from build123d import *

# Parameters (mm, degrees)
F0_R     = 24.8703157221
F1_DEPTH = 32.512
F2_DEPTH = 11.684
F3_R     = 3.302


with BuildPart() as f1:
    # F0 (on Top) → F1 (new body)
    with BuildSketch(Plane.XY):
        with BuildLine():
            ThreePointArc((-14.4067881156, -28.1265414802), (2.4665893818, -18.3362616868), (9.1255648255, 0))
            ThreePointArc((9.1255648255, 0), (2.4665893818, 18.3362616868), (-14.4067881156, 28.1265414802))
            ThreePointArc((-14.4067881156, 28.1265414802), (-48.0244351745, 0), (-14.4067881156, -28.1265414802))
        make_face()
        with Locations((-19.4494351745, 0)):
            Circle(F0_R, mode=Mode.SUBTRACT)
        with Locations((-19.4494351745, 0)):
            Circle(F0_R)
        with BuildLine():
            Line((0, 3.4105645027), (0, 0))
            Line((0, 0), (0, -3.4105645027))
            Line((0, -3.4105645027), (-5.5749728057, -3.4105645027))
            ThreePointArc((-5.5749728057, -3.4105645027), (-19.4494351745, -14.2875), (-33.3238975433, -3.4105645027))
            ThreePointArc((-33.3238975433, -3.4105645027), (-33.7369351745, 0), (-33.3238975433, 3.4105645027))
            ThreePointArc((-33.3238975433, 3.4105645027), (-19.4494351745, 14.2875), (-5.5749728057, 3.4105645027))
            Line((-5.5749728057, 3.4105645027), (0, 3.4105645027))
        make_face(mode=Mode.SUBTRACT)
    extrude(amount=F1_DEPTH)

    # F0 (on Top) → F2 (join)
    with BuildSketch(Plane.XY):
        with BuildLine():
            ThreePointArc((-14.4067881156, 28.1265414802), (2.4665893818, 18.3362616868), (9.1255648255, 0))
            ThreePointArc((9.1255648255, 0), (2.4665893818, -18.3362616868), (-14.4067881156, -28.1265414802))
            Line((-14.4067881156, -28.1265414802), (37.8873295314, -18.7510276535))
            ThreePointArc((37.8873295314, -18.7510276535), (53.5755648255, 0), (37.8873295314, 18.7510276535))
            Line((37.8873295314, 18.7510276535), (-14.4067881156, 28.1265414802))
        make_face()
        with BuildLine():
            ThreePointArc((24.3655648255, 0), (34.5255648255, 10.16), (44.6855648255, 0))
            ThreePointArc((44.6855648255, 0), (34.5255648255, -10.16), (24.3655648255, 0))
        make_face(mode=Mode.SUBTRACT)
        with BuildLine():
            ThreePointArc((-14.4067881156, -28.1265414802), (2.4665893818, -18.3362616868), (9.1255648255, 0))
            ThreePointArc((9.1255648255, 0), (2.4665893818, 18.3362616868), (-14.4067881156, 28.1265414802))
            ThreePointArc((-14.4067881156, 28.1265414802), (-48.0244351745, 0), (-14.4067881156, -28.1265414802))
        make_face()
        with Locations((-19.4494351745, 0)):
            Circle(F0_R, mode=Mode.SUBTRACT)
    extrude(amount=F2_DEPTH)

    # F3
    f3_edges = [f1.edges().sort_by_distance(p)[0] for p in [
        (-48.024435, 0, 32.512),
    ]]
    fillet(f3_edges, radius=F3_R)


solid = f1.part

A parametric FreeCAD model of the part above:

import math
import FreeCAD as App
import Part
import Sketcher
Q = App.Units.Quantity


def edges_at(feature, points):
    """Names of the edges that pass closest to the given points."""
    edges = feature.Shape.Edges
    near = lambda p: min(range(len(edges)), key=lambda i: edges[i].distToShape(Part.Vertex(*p))[0])
    return sorted({f"Edge{near(p) + 1}" for p in points})

doc = App.newDocument("Part")
body = doc.addObject("PartDesign::Body", "Body")

# Sketch on XY plane
sketch1 = body.newObject("Sketcher::SketchObject", "Sketch")
sketch1.AttachmentSupport = (doc.getObject("XY_Plane"), [""])
sketch1.MapMode = "FlatFace"
sketch1.addGeometry([
    Part.ArcOfCircle(Part.Circle(App.Vector(-19.449435, 0, 0), App.Vector(0, 0, 1), 28.575), math.radians(-79.835751), math.radians(79.835751)),  # 0
    Part.ArcOfCircle(Part.Circle(App.Vector(-19.449435, 0, 0), App.Vector(0, 0, 1), 28.575), math.radians(79.835751), math.radians(280.164249)),  # 1
    Part.LineSegment(App.Vector(-5.574973, 3.410565, 0), App.Vector(0, 3.410565, 0)),  # 2
    Part.LineSegment(App.Vector(0, 3.410565, 0), App.Vector(0, -3.410565, 0)),  # 3
    Part.LineSegment(App.Vector(0, -3.410565, 0), App.Vector(-5.574973, -3.410565, 0)),  # 4
    Part.ArcOfCircle(Part.Circle(App.Vector(-19.449435, 0, 0), App.Vector(0, 0, 1), 14.2875), math.radians(-166.189603), math.radians(-13.810397)),  # 5
    Part.ArcOfCircle(Part.Circle(App.Vector(-19.449435, 0, 0), App.Vector(0, 0, 1), 14.2875), math.radians(166.189603), math.radians(193.810397)),  # 6
    Part.ArcOfCircle(Part.Circle(App.Vector(-19.449435, 0, 0), App.Vector(0, 0, 1), 14.2875), math.radians(13.810397), math.radians(166.189603)),  # 7
], False)
sketch1.addConstraint([
    Sketcher.Constraint("Tangent", 0, 1, 1, 2),
    Sketcher.Constraint("Coincident", 1, 1, 0, 2),
    Sketcher.Constraint("Coincident", 2, 2, 3, 1),
    Sketcher.Constraint("Coincident", 3, 2, 4, 1),
    Sketcher.Constraint("Coincident", 4, 2, 5, 2),
    Sketcher.Constraint("Tangent", 5, 1, 6, 2),
    Sketcher.Constraint("Tangent", 6, 1, 7, 2),
    Sketcher.Constraint("Coincident", 7, 1, 2, 1),
    Sketcher.Constraint("Horizontal", 2),
    Sketcher.Constraint("Vertical", 3),
    Sketcher.Constraint("Horizontal", 4),
    Sketcher.Constraint("Coincident", 5, 3, 0, 3),
    Sketcher.Constraint("Coincident", 7, 3, 0, 3),
    Sketcher.Constraint("Symmetric", 2, 2, 3, 2, -1, 1),
    Sketcher.Constraint("Symmetric", 0, 1, 1, 1, -1),
    Sketcher.Constraint("Horizontal", 4, 2, 5, 1),
    Sketcher.Constraint("Horizontal", 2, 2, 6, 1),
    Sketcher.Constraint("Radius", 0, Q("1.125 in")),
    Sketcher.Constraint("Radius", 5, Q("0.5625 in")),
    Sketcher.Constraint("DistanceY", 3, 2, 3, 1, 6.821129),
    Sketcher.Constraint("DistanceX", 2, 1, 2, 2, 5.574973),
    Sketcher.Constraint("DistanceX", 0, 1, -1, 1, 14.406788),
])
pad1 = body.newObject("PartDesign::Pad", "Pad")
pad1.Profile = sketch1
pad1.Length = Q("1.28 in")

# Sketch on XY plane
sketch2 = body.newObject("Sketcher::SketchObject", "Sketch001")
sketch2.AttachmentSupport = (doc.getObject("XY_Plane"), [""])
sketch2.MapMode = "FlatFace"
sketch2.addGeometry([
    Part.LineSegment(App.Vector(37.88733, 18.751028, 0), App.Vector(-14.406788, 28.126541, 0)),  # 0
    Part.ArcOfCircle(Part.Circle(App.Vector(-19.449435, 0, 0), App.Vector(0, 0, 1), 28.575), math.radians(79.835751), math.radians(280.164249)),  # 1
    Part.LineSegment(App.Vector(-14.406788, -28.126541, 0), App.Vector(37.88733, -18.751028, 0)),  # 2
    Part.ArcOfCircle(Part.Circle(App.Vector(34.525565, 0, 0), App.Vector(0, 0, 1), 19.05), math.radians(-79.835751), math.radians(79.835751)),  # 3
    Part.Circle(App.Vector(-19.449435, 0, 0), App.Vector(0, 0, 1), 24.870316),  # 4
    Part.Circle(App.Vector(34.525565, 0, 0), App.Vector(0, 0, 1), 10.16),  # 5
], False)
sketch2.addConstraint([
    Sketcher.Constraint("Tangent", 0, 2, 1, 1),
    Sketcher.Constraint("Tangent", 1, 2, 2, 1),
    Sketcher.Constraint("Tangent", 2, 2, 3, 1),
    Sketcher.Constraint("Tangent", 3, 2, 0, 1),
    Sketcher.Constraint("Coincident", 4, 3, 1, 3),
    Sketcher.Constraint("Coincident", 5, 3, 3, 3),
    Sketcher.Constraint("Symmetric", 0, 2, 1, 2, -1),
    Sketcher.Constraint("Diameter", 5, Q("0.8 in")),
    Sketcher.Constraint("Radius", 3, Q("0.75 in")),
    Sketcher.Constraint("Radius", 1, Q("1.125 in")),
    Sketcher.Constraint("Diameter", 4, 49.740631),
    Sketcher.Constraint("DistanceX", 1, 3, 3, 3, Q("2.125 in")),
    Sketcher.Constraint("DistanceX", 0, 2, -1, 1, 14.406788),
])
pad2 = body.newObject("PartDesign::Pad", "Pad001")
pad2.Profile = sketch2
pad2.Length = Q("0.46 in")
doc.recompute()

fillet = body.newObject("PartDesign::Fillet", "Fillet")
fillet.Base = (pad2, edges_at(pad2, [(-48.024, 0, 32.512)]))
fillet.Radius = Q("0.13 in")

doc.recompute()
